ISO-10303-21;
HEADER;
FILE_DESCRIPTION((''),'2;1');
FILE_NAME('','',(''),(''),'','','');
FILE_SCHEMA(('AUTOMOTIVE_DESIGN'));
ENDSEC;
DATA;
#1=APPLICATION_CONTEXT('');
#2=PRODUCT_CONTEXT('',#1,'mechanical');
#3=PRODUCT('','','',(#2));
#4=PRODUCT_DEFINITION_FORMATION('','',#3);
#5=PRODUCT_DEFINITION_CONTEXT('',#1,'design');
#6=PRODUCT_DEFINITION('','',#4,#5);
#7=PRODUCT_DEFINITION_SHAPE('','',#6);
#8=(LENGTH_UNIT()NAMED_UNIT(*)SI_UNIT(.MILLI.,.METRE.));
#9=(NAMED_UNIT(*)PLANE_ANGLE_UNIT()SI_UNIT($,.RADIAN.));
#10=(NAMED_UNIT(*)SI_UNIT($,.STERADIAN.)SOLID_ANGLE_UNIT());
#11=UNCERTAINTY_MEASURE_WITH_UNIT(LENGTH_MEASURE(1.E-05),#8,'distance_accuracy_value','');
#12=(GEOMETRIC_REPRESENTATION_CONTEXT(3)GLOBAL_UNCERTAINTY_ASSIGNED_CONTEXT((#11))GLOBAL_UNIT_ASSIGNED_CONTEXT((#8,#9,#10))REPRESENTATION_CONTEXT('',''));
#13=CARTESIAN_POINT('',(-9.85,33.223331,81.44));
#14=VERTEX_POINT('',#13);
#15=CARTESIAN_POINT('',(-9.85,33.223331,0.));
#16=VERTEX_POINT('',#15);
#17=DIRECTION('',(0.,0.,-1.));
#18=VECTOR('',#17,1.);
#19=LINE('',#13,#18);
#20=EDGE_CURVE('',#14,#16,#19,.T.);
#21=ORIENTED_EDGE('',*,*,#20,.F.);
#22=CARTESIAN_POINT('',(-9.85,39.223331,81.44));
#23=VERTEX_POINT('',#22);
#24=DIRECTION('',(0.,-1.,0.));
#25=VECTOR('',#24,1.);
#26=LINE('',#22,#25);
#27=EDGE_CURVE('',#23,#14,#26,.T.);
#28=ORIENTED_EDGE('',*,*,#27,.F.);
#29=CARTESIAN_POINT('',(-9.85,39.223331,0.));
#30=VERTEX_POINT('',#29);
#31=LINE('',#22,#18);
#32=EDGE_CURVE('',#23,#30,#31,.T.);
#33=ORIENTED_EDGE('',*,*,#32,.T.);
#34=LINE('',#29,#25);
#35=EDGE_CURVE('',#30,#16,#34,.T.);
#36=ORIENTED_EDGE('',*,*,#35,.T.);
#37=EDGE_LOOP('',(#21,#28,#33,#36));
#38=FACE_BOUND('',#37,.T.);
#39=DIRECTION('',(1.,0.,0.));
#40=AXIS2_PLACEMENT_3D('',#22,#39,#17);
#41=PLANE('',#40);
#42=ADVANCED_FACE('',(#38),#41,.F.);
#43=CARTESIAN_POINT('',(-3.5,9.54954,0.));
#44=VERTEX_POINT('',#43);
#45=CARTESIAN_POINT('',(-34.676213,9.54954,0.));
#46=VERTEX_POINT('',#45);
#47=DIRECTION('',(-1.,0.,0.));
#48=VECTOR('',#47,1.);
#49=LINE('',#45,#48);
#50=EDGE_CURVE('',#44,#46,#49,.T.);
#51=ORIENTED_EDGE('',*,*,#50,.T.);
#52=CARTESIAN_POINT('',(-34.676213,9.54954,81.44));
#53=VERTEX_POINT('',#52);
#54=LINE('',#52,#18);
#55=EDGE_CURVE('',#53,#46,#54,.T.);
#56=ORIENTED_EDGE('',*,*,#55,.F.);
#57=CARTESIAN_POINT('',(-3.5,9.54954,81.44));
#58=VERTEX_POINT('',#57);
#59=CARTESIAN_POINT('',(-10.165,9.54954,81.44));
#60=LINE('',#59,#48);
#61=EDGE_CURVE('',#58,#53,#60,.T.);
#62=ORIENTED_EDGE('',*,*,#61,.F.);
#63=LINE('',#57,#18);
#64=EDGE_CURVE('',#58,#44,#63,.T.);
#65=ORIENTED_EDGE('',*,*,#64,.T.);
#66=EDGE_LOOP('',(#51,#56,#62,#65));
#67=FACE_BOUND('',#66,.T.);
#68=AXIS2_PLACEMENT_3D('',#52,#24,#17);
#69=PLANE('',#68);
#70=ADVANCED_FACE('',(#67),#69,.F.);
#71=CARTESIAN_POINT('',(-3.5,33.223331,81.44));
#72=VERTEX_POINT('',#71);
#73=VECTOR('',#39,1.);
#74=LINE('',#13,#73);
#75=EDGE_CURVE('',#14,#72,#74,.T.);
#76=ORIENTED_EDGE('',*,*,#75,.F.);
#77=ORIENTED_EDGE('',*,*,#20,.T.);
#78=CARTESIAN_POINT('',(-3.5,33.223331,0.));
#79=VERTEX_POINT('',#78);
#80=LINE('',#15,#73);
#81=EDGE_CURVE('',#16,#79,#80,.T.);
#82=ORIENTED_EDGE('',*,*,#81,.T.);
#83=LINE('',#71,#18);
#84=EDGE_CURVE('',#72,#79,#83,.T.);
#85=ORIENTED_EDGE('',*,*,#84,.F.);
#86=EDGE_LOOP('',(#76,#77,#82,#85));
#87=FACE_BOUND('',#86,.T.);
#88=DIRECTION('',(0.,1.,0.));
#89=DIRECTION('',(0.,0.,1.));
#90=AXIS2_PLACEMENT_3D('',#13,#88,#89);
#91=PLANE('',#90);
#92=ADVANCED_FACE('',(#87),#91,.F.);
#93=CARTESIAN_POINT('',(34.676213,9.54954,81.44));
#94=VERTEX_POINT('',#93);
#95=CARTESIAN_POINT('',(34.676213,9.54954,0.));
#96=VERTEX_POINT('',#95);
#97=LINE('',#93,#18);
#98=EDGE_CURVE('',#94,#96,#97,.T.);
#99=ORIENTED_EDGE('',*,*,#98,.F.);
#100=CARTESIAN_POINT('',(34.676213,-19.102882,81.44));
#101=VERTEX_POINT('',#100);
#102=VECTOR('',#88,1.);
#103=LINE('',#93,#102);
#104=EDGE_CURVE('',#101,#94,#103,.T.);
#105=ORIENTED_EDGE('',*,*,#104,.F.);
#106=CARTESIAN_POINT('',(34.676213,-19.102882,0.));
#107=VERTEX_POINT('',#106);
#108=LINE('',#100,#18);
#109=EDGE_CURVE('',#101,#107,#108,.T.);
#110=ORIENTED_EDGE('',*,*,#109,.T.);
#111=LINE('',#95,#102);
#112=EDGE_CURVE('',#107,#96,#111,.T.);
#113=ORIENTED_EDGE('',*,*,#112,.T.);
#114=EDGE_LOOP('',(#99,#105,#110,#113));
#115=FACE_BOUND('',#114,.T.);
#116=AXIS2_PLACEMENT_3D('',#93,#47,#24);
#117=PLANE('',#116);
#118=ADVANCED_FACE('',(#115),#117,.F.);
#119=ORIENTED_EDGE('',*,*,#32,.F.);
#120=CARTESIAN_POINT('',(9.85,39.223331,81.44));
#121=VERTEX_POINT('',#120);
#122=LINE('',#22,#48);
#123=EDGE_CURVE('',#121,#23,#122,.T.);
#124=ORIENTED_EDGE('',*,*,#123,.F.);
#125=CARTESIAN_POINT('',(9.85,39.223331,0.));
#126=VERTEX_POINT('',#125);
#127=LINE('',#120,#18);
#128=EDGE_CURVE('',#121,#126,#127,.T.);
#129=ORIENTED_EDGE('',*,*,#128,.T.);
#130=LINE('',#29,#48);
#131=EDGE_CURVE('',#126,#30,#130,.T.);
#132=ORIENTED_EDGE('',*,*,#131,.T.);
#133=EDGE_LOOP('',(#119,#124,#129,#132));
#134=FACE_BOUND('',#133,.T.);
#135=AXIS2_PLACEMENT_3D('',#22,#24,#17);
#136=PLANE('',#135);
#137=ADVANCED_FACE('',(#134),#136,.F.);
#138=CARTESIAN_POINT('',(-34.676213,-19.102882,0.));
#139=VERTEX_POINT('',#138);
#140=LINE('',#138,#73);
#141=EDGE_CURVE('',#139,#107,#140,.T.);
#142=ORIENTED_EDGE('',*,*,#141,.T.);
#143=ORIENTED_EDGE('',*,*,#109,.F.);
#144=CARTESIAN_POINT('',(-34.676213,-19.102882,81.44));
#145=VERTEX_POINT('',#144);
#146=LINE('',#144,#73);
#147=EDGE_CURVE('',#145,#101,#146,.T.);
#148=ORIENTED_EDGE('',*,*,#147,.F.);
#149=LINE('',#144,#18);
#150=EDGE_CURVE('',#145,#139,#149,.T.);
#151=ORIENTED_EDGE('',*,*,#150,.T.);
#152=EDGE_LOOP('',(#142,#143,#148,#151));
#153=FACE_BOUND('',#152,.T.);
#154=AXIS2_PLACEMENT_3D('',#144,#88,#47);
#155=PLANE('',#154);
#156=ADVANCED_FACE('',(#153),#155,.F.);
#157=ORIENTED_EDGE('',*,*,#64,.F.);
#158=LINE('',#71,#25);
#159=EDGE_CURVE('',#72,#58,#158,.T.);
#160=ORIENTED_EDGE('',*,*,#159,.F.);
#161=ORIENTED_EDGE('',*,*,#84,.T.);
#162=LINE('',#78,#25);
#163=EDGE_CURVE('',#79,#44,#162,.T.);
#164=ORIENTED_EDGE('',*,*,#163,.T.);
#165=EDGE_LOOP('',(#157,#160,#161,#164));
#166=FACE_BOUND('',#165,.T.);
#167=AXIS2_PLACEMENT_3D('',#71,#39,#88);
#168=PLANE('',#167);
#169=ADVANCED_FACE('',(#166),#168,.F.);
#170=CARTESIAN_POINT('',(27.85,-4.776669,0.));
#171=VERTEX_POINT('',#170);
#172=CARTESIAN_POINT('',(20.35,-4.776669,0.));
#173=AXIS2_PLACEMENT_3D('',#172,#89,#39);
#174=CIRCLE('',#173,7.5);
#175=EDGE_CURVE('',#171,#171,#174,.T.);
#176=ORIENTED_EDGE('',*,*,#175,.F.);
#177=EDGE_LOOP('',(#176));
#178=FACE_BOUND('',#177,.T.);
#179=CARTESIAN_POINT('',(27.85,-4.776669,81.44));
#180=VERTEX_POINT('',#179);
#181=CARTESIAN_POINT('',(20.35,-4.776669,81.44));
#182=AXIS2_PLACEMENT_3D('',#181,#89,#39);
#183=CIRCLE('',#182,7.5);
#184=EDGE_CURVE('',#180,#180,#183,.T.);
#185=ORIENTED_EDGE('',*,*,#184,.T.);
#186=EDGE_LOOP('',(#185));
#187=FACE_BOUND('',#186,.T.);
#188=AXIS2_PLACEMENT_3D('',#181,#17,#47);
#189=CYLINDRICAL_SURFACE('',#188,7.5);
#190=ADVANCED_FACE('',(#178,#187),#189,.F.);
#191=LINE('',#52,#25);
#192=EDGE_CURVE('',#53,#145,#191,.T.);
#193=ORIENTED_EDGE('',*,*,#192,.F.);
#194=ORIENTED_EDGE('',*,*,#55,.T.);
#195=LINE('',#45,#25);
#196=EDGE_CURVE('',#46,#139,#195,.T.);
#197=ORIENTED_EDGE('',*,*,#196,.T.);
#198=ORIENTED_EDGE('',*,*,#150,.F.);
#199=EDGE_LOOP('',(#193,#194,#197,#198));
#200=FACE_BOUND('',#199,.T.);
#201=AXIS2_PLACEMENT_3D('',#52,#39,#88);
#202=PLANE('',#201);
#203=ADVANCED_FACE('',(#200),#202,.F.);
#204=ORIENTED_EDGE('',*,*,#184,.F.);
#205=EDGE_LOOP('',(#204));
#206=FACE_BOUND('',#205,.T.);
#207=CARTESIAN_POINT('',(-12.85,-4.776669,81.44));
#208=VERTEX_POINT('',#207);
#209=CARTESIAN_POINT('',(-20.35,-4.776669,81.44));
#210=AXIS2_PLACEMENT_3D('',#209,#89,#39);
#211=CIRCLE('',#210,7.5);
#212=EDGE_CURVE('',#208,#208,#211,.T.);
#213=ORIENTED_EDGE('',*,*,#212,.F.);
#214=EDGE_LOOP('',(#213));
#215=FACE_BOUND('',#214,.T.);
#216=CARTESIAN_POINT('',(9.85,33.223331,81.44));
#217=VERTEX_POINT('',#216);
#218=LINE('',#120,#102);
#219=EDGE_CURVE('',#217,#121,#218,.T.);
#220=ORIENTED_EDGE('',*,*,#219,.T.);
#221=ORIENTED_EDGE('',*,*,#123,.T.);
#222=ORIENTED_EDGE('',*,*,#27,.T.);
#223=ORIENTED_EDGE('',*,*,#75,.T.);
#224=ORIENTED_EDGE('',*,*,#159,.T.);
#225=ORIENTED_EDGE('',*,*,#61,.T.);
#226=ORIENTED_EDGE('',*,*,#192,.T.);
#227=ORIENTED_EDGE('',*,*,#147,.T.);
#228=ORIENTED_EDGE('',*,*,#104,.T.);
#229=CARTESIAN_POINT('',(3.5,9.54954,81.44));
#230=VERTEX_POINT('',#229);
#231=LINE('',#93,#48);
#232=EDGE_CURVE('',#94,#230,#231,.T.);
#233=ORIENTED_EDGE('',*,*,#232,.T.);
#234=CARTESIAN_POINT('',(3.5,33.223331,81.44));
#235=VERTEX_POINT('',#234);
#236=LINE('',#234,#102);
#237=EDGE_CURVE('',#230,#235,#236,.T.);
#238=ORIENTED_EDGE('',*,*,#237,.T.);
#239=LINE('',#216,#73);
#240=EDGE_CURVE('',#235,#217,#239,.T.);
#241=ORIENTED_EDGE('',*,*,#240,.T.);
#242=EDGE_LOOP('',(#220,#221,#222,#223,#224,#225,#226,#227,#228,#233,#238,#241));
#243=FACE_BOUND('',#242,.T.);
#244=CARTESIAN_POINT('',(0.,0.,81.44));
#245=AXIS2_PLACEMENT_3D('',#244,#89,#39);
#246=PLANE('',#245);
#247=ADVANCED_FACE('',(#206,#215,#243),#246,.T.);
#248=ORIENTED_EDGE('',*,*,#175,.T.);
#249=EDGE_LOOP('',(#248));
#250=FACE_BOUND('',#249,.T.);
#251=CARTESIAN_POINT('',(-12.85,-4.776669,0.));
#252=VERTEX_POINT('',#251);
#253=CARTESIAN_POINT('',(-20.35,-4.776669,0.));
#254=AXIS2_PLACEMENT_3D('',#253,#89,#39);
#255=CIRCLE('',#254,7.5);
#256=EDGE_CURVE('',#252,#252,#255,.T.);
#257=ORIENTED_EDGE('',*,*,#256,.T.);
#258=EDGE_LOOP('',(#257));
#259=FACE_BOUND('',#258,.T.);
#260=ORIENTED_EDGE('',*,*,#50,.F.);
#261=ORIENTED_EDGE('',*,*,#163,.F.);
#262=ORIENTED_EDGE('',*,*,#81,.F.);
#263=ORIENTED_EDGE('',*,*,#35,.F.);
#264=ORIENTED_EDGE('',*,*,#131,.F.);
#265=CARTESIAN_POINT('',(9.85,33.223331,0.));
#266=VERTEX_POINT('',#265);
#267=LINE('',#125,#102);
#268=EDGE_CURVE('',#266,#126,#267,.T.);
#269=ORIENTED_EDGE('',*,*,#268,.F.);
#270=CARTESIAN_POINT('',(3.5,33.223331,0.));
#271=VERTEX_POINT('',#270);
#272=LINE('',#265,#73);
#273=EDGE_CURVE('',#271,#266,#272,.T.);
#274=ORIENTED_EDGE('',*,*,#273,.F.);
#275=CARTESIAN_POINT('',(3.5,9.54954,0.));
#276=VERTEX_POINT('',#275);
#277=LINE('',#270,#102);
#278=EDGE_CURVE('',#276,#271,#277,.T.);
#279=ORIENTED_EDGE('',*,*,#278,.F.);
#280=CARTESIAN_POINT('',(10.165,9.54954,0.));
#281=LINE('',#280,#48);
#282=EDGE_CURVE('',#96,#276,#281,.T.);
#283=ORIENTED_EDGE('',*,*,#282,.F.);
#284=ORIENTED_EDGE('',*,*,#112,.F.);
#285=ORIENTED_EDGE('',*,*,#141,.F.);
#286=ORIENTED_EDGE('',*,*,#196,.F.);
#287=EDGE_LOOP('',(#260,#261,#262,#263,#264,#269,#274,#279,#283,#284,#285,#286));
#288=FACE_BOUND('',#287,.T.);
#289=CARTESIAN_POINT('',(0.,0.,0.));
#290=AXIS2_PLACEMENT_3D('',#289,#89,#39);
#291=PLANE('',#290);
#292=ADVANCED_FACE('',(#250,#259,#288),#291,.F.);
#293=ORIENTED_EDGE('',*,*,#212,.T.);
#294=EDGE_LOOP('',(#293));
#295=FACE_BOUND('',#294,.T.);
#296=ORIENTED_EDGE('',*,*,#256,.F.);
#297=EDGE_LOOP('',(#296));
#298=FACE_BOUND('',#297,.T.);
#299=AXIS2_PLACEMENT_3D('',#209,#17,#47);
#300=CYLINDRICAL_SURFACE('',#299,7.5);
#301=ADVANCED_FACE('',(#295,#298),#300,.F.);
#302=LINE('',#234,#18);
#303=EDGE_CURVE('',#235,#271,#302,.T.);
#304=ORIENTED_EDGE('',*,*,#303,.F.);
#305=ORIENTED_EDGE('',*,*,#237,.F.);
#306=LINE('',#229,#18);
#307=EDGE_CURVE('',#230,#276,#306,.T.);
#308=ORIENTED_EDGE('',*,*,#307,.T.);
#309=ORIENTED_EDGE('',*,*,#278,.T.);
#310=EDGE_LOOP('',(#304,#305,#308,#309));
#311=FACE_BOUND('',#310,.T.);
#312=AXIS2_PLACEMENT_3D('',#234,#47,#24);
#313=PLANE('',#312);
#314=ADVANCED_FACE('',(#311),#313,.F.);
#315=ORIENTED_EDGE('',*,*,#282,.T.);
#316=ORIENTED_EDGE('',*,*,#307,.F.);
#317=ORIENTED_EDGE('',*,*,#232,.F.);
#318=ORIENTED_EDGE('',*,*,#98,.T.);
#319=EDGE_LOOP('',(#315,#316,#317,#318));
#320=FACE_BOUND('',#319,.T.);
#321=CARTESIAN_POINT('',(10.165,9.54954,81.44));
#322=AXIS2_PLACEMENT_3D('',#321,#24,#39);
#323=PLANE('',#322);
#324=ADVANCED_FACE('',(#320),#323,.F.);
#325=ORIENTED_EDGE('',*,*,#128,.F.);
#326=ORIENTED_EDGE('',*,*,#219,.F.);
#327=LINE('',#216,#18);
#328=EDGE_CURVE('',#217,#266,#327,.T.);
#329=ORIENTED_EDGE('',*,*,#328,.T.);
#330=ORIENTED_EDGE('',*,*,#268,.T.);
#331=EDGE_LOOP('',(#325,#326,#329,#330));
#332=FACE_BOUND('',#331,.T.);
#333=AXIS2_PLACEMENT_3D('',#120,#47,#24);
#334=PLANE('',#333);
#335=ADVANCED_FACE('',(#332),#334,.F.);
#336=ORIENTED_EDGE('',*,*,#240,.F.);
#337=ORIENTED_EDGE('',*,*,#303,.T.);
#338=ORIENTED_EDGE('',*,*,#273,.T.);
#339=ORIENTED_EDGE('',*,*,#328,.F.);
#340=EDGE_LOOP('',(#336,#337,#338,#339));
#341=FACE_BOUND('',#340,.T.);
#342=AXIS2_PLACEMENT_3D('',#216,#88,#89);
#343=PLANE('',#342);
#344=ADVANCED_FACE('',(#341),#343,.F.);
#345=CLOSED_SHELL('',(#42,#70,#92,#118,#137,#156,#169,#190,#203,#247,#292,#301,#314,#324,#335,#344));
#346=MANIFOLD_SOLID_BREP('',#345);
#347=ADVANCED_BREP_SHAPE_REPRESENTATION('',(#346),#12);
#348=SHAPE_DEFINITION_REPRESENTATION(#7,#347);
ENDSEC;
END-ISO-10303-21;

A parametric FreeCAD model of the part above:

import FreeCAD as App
import Part
import Sketcher
Q = App.Units.Quantity


def add_polygon(sketch, points):
    """Adds a closed chain of lines whose ends are joined by coincident constraints."""
    first, n = sketch.GeometryCount, len(points)
    for a, b in zip(points, points[1:] + points[:1]):
        sketch.addGeometry(Part.LineSegment(App.Vector(*a, 0), App.Vector(*b, 0)), False)
    for i in range(n):
        sketch.addConstraint(Sketcher.Constraint("Coincident", first + i, 2, first + (i + 1) % n, 1))

doc = App.newDocument("Part")
body = doc.addObject("PartDesign::Body", "Body")

# Sketch on XY plane
sketch1 = doc.addObject("Sketcher::SketchObject", "Sketch")
body.addObject(sketch1)
sketch1.AttachmentSupport = (doc.XY_Plane, [""])
sketch1.MapMode = "FlatFace"
add_polygon(sketch1, [(9.85, 39.223331), (-9.85, 39.223331), (-9.85, 33.223331), (-3.5, 33.223331), (-3.5, 9.54954), (-34.676213, 9.54954), (-34.676213, -19.102882), (34.676213, -19.102882), (34.676213, 9.54954), (3.5, 9.54954), (3.5, 33.223331), (9.85, 33.223331)])  # lines 0-11
sketch1.addGeometry(Part.Circle(App.Vector(20.35, -4.776669, 0), App.Vector(0, 0, 1), 7.5), False)  # 12
sketch1.addGeometry(Part.Circle(App.Vector(-20.35, -4.776669, 0), App.Vector(0, 0, 1), 7.5), False)  # 13
sketch1.addConstraint(Sketcher.Constraint("Horizontal", 0))
sketch1.addConstraint(Sketcher.Constraint("Vertical", 1))
sketch1.addConstraint(Sketcher.Constraint("Horizontal", 2))
sketch1.addConstraint(Sketcher.Constraint("Vertical", 3))
sketch1.addConstraint(Sketcher.Constraint("Horizontal", 4))
sketch1.addConstraint(Sketcher.Constraint("Vertical", 5))
sketch1.addConstraint(Sketcher.Constraint("Horizontal", 6))
sketch1.addConstraint(Sketcher.Constraint("Vertical", 7))
sketch1.addConstraint(Sketcher.Constraint("Horizontal", 8))
sketch1.addConstraint(Sketcher.Constraint("Vertical", 9))
sketch1.addConstraint(Sketcher.Constraint("Horizontal", 10))
sketch1.addConstraint(Sketcher.Constraint("Vertical", 11))
sketch1.addConstraint(Sketcher.Constraint("Equal", 12, 13))
sketch1.addConstraint(Sketcher.Constraint("Symmetric", 12, 3, 13, 3, -2))
sketch1.addConstraint(Sketcher.Constraint("Symmetric", 4, 2, 7, 2, -2))
sketch1.addConstraint(Sketcher.Constraint("Symmetric", 2, 2, 9, 2, -2))
sketch1.addConstraint(Sketcher.Constraint("Equal", 2, 10))
sketch1.addConstraint(Sketcher.Constraint("Diameter", 12, Q("15 mm")))
sketch1.addConstraint(Sketcher.Constraint("DistanceY", 1, 2, 1, 1, Q("6 mm")))
sketch1.addConstraint(Sketcher.Constraint("DistanceX", 0, 2, 0, 1, Q("19.7 mm")))
sketch1.addConstraint(Sketcher.Constraint("DistanceY", 13, 3, 0, 2, Q("44 mm")))
sketch1.addConstraint(Sketcher.Constraint("DistanceX", 3, 2, 8, 2, Q("7 mm")))
sketch1.addConstraint(Sketcher.Constraint("DistanceX", 13, 3, 12, 3, Q("40.7 mm")))
sketch1.addConstraint(Sketcher.Constraint("DistanceY", 3, 2, 3, 1, Q("23.67379 mm")))
sketch1.addConstraint(Sketcher.Constraint("DistanceX", 4, 2, 4, 1, Q("31.176213 mm")))
sketch1.addConstraint(Sketcher.Constraint("DistanceY", 5, 2, 5, 1, Q("28.652423 mm")))
sketch1.addConstraint(Sketcher.Constraint("DistanceY", 12, 3, -1, 1, Q("4.776669 mm")))
pad1 = doc.addObject("PartDesign::Pad", "Pad")
body.addObject(pad1)
pad1.Profile = sketch1
pad1.Length = 81.44

doc.recompute()
